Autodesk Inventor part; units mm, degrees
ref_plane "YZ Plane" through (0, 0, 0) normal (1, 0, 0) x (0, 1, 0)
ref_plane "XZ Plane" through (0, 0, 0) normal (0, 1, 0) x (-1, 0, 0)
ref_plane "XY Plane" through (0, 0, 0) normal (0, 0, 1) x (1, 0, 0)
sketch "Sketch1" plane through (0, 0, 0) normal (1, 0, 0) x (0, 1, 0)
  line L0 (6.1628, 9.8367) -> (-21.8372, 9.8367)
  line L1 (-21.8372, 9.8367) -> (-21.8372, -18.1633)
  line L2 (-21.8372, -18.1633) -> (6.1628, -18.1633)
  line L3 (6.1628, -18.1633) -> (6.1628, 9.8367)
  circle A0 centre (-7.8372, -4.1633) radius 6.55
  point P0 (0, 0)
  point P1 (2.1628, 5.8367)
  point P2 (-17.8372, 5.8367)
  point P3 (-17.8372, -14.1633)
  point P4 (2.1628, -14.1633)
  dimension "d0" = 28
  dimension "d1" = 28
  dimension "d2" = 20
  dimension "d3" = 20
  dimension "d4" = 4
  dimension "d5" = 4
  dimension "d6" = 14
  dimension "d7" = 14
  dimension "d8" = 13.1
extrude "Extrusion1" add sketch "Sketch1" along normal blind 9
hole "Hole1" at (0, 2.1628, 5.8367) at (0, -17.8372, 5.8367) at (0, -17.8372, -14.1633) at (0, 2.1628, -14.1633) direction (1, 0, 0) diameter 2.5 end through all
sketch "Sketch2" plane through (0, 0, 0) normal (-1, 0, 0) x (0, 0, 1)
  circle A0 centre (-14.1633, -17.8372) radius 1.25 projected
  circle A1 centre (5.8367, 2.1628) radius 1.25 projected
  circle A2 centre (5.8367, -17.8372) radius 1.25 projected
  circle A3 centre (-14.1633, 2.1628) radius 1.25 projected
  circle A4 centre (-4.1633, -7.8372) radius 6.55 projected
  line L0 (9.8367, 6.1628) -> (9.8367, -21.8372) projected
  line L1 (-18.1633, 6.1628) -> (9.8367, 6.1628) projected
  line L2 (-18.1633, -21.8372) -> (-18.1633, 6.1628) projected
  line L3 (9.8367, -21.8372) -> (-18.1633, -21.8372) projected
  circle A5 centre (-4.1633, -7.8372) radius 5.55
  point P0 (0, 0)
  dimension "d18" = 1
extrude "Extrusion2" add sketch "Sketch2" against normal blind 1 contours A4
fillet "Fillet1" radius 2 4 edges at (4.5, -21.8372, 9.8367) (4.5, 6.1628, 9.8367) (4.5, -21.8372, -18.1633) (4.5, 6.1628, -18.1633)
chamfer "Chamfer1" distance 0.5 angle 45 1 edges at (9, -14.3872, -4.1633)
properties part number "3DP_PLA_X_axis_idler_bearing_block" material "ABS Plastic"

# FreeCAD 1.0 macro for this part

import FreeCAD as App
import Part
import Sketcher

V = App.Vector


def edges_at(feature, points):
    """Names of the edges that pass closest to the given points."""
    edges = feature.Shape.Edges
    near = lambda p: min(range(len(edges)), key=lambda i: edges[i].distToShape(Part.Vertex(*p))[0])
    return sorted({f"Edge{near(p) + 1}" for p in points})

doc = App.newDocument("Part")
body = doc.addObject("PartDesign::Body", "Body")

sketch1 = body.newObject("Sketcher::SketchObject", "Sketch")
sketch1.AttachmentSupport = (doc.getObject("YZ_Plane"), [""])
sketch1.MapMode = "FlatFace"
sketch1.addGeometry(Part.LineSegment(V(6, -18, 0), V(6, 10, 0)), False)
sketch1.addGeometry(Part.LineSegment(V(6, 10, 0), V(-22, 10, 0)), False)
sketch1.addGeometry(Part.LineSegment(V(-22, 10, 0), V(-22, -18, 0)), False)
sketch1.addGeometry(Part.LineSegment(V(-22, -18, 0), V(6, -18, 0)), False)
sketch1.addGeometry(Part.Circle(V(-8, -4, 0), V(0, 0, 1), 7), False)
sketch1.addConstraint(Sketcher.Constraint("Coincident", 0, 2, 1, 1))
sketch1.addConstraint(Sketcher.Constraint("Coincident", 1, 2, 2, 1))
sketch1.addConstraint(Sketcher.Constraint("Coincident", 2, 2, 3, 1))
sketch1.addConstraint(Sketcher.Constraint("Coincident", 3, 2, 0, 1))
sketch1.addConstraint(Sketcher.Constraint("Vertical", 0))
sketch1.addConstraint(Sketcher.Constraint("Horizontal", 1))
sketch1.addConstraint(Sketcher.Constraint("Vertical", 2))
sketch1.addConstraint(Sketcher.Constraint("Horizontal", 3))
sketch1.addConstraint(Sketcher.Constraint("Equal", 3, 0))
sketch1.addConstraint(Sketcher.Constraint("Diameter", 4, 13.1))
sketch1.addConstraint(Sketcher.Constraint("DistanceX", 1, 2, 1, 1, 28.0))
sketch1.addConstraint(Sketcher.Constraint("DistanceX", 4, 3, 0, 2, 14.0))
sketch1.addConstraint(Sketcher.Constraint("DistanceY", 4, 3, 0, 2, 14.0))
sketch1.addConstraint(Sketcher.Constraint("DistanceX", 4, 3, -1, 1, 7.8372))
sketch1.addConstraint(Sketcher.Constraint("DistanceY", 4, 3, -1, 1, 4.1633))
pad1 = body.newObject("PartDesign::Pad", "Pad")
pad1.Profile = sketch1
pad1.Length = 9

sketch2 = body.newObject("Sketcher::SketchObject", "Sketch001")
sketch2.AttachmentSupport = (doc.getObject("YZ_Plane"), [""])
sketch2.MapMode = "FlatFace"
sketch2.addGeometry(Part.Circle(V(2.2, 5.8, 0), V(0, 0, 1), 1.2), False)
sketch2.addGeometry(Part.Circle(V(-17.8, 5.8, 0), V(0, 0, 1), 1.2), False)
sketch2.addGeometry(Part.Circle(V(-17.8, -14.2, 0), V(0, 0, 1), 1.2), False)
sketch2.addGeometry(Part.Circle(V(2.2, -14.2, 0), V(0, 0, 1), 1.2), False)
sketch2.addConstraint(Sketcher.Constraint("Equal", 0, 1))
sketch2.addConstraint(Sketcher.Constraint("Equal", 1, 2))
sketch2.addConstraint(Sketcher.Constraint("Equal", 2, 3))
sketch2.addConstraint(Sketcher.Constraint("Horizontal", 0, 3, 1, 3))
sketch2.addConstraint(Sketcher.Constraint("Horizontal", 2, 3, 3, 3))
sketch2.addConstraint(Sketcher.Constraint("Vertical", 1, 3, 2, 3))
sketch2.addConstraint(Sketcher.Constraint("Vertical", 0, 3, 3, 3))
sketch2.addConstraint(Sketcher.Constraint("Diameter", 0, 2.5))
sketch2.addConstraint(Sketcher.Constraint("DistanceX", 1, 3, 0, 3, 20.0))
sketch2.addConstraint(Sketcher.Constraint("DistanceY", 2, 3, 1, 3, 20.0))
sketch2.addConstraint(Sketcher.Constraint("DistanceX", -1, 1, 0, 3, 2.1628))
sketch2.addConstraint(Sketcher.Constraint("DistanceY", -1, 1, 0, 3, 5.8367))
doc.recompute()
hole = body.newObject("PartDesign::Hole", "Hole")
hole.Profile = sketch2
hole.ThreadType = "None"
hole.Diameter = 2.5
hole.DepthType = "ThroughAll"
hole.Reversed = True

sketch3 = body.newObject("Sketcher::SketchObject", "Sketch002")
sketch3.AttachmentSupport = (doc.getObject("YZ_Plane"), [""])
sketch3.MapMode = "FlatFace"
sketch3.addGeometry(Part.Circle(V(-8, -4, 0), V(0, 0, 1), 7), False)
sketch3.addGeometry(Part.Circle(V(-8, -4, 0), V(0, 0, 1), 6), False)
sketch3.addConstraint(Sketcher.Constraint("Coincident", 1, 3, 0, 3))
sketch3.addConstraint(Sketcher.Constraint("Diameter", 0, 13.1))
sketch3.addConstraint(Sketcher.Constraint("Diameter", 1, 11.1))
sketch3.addConstraint(Sketcher.Constraint("DistanceX", 0, 3, -1, 1, 7.8372))
sketch3.addConstraint(Sketcher.Constraint("DistanceY", 0, 3, -1, 1, 4.1633))
pad2 = body.newObject("PartDesign::Pad", "Pad001")
pad2.Profile = sketch3
pad2.Length = 1
doc.recompute()

fillet = body.newObject("PartDesign::Fillet", "Fillet")
fillet.Base = (pad2, edges_at(pad2, [
    (4.5, -21.837, 9.837),
    (4.5, 6.163, 9.837),
    (4.5, -21.837, -18.163),
    (4.5, 6.163, -18.163),
]))
fillet.Radius = 2
doc.recompute()

chamfer = body.newObject("PartDesign::Chamfer", "Chamfer")
chamfer.Base = (fillet, edges_at(fillet, [(9, -14.387, -4.163)]))
chamfer.Size = 0.5

doc.recompute()
